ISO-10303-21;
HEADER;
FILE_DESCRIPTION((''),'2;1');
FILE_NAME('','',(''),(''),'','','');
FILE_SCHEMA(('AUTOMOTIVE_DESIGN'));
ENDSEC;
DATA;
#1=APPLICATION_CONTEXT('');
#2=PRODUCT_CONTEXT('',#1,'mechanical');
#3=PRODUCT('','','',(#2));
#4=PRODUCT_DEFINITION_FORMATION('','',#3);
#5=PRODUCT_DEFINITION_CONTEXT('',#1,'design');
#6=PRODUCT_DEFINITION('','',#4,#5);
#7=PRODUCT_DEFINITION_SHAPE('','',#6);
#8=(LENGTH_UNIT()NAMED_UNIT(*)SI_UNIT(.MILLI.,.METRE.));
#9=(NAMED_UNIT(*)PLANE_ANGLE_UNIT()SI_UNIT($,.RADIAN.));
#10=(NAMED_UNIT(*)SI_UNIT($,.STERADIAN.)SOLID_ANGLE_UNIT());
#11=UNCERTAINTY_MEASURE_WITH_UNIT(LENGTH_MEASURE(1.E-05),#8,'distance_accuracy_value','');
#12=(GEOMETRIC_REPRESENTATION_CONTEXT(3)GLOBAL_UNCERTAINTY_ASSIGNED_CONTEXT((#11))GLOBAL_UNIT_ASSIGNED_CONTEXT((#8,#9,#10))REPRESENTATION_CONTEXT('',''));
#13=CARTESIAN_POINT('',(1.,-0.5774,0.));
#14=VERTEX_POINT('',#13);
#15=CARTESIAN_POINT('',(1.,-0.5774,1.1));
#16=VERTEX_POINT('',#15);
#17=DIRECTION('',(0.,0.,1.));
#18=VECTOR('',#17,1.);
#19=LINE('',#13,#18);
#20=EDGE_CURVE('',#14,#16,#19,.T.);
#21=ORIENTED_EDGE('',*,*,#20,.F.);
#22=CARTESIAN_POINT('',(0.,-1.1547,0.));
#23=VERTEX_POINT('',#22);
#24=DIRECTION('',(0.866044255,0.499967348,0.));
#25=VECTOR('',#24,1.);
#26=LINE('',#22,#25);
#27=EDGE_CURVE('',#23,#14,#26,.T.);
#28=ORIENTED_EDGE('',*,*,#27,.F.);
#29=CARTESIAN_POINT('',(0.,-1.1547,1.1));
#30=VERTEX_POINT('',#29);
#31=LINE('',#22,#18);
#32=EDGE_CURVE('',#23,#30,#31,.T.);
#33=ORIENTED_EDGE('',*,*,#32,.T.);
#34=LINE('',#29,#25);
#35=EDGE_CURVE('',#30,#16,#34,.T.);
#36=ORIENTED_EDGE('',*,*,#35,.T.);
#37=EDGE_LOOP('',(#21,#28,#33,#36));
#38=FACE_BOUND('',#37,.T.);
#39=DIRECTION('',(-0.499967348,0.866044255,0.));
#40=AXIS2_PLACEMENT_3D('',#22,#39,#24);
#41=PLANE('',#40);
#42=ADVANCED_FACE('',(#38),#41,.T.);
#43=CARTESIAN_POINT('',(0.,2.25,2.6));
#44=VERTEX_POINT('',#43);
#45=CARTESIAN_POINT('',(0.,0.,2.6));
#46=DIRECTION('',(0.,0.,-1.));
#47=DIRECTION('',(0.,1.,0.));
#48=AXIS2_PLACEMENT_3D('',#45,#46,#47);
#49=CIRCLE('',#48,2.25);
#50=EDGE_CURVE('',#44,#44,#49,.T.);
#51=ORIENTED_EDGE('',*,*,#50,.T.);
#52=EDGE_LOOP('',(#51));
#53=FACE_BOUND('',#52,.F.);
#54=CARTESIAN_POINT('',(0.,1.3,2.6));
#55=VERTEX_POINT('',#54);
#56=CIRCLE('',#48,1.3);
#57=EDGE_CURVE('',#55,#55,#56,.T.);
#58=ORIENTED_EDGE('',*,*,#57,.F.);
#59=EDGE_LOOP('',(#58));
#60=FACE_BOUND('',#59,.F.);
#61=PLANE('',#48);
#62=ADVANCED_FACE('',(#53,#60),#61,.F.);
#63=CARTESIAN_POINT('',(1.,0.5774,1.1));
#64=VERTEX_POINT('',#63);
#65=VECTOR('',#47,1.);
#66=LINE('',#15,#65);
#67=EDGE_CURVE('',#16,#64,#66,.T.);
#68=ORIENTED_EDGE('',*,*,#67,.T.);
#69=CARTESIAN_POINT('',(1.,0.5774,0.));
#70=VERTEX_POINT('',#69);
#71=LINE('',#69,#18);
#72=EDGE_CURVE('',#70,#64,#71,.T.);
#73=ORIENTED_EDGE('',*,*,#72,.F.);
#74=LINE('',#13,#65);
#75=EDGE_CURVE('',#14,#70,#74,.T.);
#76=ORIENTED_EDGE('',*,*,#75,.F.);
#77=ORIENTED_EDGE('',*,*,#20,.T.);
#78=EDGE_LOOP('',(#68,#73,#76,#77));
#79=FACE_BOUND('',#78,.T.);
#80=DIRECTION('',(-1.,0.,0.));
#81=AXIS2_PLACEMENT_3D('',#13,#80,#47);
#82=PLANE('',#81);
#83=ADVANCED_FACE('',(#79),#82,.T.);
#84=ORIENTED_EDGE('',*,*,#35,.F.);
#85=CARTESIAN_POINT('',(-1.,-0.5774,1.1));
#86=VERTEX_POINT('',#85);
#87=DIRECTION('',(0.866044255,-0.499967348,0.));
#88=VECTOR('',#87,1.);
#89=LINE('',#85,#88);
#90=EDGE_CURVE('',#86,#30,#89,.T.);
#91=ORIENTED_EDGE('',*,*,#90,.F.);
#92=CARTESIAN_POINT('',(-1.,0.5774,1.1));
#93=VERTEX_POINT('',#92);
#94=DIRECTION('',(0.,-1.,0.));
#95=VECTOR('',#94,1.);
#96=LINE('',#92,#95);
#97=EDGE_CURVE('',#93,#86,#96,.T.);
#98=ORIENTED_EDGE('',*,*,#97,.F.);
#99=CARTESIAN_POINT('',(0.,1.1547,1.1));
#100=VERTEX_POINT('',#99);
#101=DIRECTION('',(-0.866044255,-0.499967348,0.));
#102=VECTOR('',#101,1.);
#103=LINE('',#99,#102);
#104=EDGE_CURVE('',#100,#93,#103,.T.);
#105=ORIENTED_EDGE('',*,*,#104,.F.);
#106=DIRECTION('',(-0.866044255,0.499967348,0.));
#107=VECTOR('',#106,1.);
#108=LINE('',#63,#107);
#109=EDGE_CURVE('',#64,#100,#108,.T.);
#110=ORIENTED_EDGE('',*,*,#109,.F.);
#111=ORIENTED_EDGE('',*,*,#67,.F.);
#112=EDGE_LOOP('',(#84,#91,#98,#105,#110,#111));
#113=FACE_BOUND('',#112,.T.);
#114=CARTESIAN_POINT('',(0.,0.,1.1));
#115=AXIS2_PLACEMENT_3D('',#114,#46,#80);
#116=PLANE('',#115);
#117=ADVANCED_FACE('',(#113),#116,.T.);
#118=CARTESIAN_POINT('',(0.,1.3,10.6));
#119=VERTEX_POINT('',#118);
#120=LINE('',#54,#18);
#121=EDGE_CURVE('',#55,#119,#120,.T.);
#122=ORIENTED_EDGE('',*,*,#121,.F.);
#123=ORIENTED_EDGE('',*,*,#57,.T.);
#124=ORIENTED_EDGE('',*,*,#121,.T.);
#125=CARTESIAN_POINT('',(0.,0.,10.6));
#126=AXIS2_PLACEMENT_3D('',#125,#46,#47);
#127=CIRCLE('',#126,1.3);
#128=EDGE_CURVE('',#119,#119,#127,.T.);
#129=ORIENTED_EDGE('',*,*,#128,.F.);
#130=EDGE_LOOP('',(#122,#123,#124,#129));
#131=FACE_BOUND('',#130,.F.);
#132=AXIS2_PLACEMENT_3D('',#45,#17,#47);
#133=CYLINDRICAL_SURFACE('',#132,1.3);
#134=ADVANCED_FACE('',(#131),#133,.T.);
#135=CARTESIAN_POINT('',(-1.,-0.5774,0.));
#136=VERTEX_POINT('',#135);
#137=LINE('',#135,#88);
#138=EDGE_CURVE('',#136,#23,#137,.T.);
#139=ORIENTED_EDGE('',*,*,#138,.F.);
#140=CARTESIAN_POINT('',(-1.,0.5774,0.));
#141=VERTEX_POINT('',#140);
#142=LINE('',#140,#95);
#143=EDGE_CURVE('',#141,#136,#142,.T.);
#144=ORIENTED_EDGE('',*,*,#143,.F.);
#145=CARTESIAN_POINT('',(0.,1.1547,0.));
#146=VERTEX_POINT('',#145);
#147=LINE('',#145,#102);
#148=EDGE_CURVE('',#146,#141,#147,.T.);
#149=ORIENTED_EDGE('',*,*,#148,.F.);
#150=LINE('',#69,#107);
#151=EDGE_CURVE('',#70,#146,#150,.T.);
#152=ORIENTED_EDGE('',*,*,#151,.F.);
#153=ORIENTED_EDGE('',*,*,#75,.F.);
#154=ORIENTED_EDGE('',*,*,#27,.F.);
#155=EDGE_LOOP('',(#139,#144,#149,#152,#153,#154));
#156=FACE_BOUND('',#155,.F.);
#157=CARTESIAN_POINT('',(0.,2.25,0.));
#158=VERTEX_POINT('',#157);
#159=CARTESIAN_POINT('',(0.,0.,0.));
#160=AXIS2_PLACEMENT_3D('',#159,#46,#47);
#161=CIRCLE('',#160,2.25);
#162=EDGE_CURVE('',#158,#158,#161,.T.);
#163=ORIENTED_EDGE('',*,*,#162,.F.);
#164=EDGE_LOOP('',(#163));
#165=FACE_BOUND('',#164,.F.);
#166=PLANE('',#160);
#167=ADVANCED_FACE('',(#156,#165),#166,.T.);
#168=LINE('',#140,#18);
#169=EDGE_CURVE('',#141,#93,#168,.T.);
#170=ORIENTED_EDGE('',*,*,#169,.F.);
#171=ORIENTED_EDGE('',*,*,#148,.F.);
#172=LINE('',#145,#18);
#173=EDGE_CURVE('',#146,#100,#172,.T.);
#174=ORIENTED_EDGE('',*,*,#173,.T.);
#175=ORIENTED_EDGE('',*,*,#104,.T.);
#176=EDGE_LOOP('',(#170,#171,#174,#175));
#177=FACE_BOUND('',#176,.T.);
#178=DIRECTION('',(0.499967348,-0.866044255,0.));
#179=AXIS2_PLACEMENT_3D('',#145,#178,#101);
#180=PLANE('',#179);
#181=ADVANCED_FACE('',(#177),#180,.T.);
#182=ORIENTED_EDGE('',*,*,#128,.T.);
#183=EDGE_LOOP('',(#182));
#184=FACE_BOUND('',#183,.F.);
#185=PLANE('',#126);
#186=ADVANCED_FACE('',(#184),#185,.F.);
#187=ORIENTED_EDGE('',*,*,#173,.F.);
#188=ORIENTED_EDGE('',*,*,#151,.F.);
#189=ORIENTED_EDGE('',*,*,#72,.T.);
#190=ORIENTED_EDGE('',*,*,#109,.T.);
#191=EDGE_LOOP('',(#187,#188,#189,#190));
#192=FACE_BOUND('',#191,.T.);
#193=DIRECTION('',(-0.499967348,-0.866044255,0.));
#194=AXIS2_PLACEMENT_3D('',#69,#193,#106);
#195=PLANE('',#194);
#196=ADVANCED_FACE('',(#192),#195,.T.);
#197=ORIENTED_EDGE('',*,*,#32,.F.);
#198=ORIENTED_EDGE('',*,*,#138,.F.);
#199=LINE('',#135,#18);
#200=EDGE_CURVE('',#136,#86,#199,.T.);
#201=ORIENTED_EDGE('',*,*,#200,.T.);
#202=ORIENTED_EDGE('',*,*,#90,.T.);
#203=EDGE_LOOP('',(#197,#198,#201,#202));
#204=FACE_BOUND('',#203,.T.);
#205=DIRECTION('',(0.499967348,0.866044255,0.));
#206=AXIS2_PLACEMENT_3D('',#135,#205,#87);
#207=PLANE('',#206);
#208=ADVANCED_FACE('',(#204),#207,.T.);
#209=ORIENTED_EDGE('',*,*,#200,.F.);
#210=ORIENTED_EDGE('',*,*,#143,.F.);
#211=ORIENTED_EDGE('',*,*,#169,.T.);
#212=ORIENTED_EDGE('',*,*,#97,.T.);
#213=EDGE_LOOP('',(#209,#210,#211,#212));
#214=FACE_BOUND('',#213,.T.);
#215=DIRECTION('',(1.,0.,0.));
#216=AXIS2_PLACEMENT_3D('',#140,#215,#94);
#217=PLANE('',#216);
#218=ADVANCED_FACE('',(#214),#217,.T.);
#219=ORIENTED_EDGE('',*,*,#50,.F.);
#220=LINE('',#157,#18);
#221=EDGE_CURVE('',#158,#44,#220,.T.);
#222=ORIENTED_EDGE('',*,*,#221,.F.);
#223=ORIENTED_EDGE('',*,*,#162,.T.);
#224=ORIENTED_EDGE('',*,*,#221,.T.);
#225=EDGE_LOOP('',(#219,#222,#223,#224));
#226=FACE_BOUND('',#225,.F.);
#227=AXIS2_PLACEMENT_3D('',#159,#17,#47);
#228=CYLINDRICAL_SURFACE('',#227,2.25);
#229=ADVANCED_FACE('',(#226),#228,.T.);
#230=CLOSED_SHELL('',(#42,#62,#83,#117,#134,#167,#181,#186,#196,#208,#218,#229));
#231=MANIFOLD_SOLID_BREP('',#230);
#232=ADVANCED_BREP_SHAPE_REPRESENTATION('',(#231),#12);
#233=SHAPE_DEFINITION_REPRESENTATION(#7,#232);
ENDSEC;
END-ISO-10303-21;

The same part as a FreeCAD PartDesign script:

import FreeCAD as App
import Part
import Sketcher
Q = App.Units.Quantity


def add_polygon(sketch, points):
    """Adds a closed chain of lines whose ends are joined by coincident constraints."""
    first, n = sketch.GeometryCount, len(points)
    for a, b in zip(points, points[1:] + points[:1]):
        sketch.addGeometry(Part.LineSegment(App.Vector(*a, 0), App.Vector(*b, 0)), False)
    for i in range(n):
        sketch.addConstraint(Sketcher.Constraint("Coincident", first + i, 2, first + (i + 1) % n, 1))

doc = App.newDocument("Part")
body = doc.addObject("PartDesign::Body", "Body")

# Sketch on YZ plane
sketch1 = doc.addObject("Sketcher::SketchObject", "Sketch")
body.addObject(sketch1)
sketch1.AttachmentSupport = (doc.YZ_Plane, [""])
sketch1.MapMode = "FlatFace"
add_polygon(sketch1, [(1.3, 10.6), (0, 10.6), (0, 0), (2.25, 0), (2.25, 2.6), (1.3, 2.6)])  # lines 0-5
sketch1.addConstraint([
    Sketcher.Constraint("Horizontal", 0),
    Sketcher.Constraint("Vertical", 1),
    Sketcher.Constraint("Horizontal", 2),
    Sketcher.Constraint("Vertical", 3),
    Sketcher.Constraint("Horizontal", 4),
    Sketcher.Constraint("Vertical", 5),
    Sketcher.Constraint("Coincident", 1, 2, -1, 1),
    Sketcher.Constraint("DistanceY", 5, 1, 5, 2, Q("8 mm")),
    Sketcher.Constraint("DistanceY", 3, 1, 3, 2, Q("2.6 mm")),
    Sketcher.Constraint("DistanceX", 0, 2, 0, 1, Q("1.3 mm")),
    Sketcher.Constraint("DistanceX", 2, 1, 2, 2, Q("2.25 mm")),
])
revolution = doc.addObject("PartDesign::Revolution", "Revolution")
body.addObject(revolution)
revolution.Profile = sketch1
revolution.ReferenceAxis = (sketch1, ["V_Axis"])
revolution.Angle = 360

# Sketch on XY plane
sketch2 = doc.addObject("Sketcher::SketchObject", "Sketch001")
body.addObject(sketch2)
sketch2.AttachmentSupport = (doc.XY_Plane, [""])
sketch2.MapMode = "FlatFace"
add_polygon(sketch2, [(-1, 0.5774), (0, 1.1547), (1, 0.5774), (1, -0.5774), (0, -1.1547), (-1, -0.5774)])  # lines 0-5
sketch2.addConstraint([
    Sketcher.Constraint("Vertical", 2),
    Sketcher.Constraint("Vertical", 5),
    Sketcher.Constraint("Symmetric", 0, 2, 3, 2, -1, 1),
    Sketcher.Constraint("Symmetric", 1, 2, 4, 2, -1, 1),
    Sketcher.Constraint("PointOnObject", 0, 2, -2),
    Sketcher.Constraint("Parallel", 0, 3),
    Sketcher.Constraint("Horizontal", 2, 2, 4, 2),
    Sketcher.Constraint("DistanceX", 4, 2, 2, 2, Q("2 mm")),
    Sketcher.Constraint("DistanceY", 2, 2, 2, 1, Q("1.1548 mm")),
    Sketcher.Constraint("DistanceY", 2, 2, 0, 2, Q("1.732 mm")),
])
pocket1 = doc.addObject("PartDesign::Pocket", "Pocket")
body.addObject(pocket1)
pocket1.Profile = sketch2
pocket1.Length = 1.1
pocket1.Reversed = True

doc.recompute()
